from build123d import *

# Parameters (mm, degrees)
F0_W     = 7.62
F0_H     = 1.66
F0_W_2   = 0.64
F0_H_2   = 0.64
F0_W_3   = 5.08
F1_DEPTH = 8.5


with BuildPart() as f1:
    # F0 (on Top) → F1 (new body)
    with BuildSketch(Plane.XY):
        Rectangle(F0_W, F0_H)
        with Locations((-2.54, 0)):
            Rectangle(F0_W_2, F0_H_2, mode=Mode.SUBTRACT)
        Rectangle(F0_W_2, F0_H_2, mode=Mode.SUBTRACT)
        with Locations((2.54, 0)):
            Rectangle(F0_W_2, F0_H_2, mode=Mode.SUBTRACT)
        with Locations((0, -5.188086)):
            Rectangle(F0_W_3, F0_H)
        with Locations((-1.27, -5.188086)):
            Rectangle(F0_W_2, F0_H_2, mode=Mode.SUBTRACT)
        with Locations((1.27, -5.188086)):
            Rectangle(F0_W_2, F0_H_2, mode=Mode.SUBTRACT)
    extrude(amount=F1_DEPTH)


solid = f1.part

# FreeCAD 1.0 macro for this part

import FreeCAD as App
import Part
import Sketcher

V = App.Vector
Q = App.Units.Quantity

doc = App.newDocument("Part")
body = doc.addObject("PartDesign::Body", "Body")
body.AllowCompound = True

# Sketch on XY plane
sketch1 = body.newObject("Sketcher::SketchObject", "Sketch")
sketch1.AttachmentSupport = (doc.getObject("XY_Plane"), [""])
sketch1.MapMode = "FlatFace"
sketch1.addGeometry([
    Part.LineSegment(V(-3.8, 0.8, 0), V(-3.8, -0.8, 0)),  # 0
    Part.LineSegment(V(-3.8, -0.8, 0), V(3.8, -0.8, 0)),  # 1
    Part.LineSegment(V(3.8, -0.8, 0), V(3.8, 0.8, 0)),  # 2
    Part.LineSegment(V(3.8, 0.8, 0), V(-3.8, 0.8, 0)),  # 3
    Part.LineSegment(V(-2.2, -0.3, 0), V(-2.9, -0.3, 0)),  # 4
    Part.LineSegment(V(-2.9, -0.3, 0), V(-2.9, 0.3, 0)),  # 5
    Part.LineSegment(V(-2.9, 0.3, 0), V(-2.2, 0.3, 0)),  # 6
    Part.LineSegment(V(-2.2, 0.3, 0), V(-2.2, -0.3, 0)),  # 7
    Part.LineSegment(V(0.3, -0.3, 0), V(-0.3, -0.3, 0)),  # 8
    Part.LineSegment(V(-0.3, -0.3, 0), V(-0.3, 0.3, 0)),  # 9
    Part.LineSegment(V(-0.3, 0.3, 0), V(0.3, 0.3, 0)),  # 10
    Part.LineSegment(V(0.3, 0.3, 0), V(0.3, -0.3, 0)),  # 11
    Part.LineSegment(V(2.9, -0.3, 0), V(2.2, -0.3, 0)),  # 12
    Part.LineSegment(V(2.2, -0.3, 0), V(2.2, 0.3, 0)),  # 13
    Part.LineSegment(V(2.2, 0.3, 0), V(2.9, 0.3, 0)),  # 14
    Part.LineSegment(V(2.9, 0.3, 0), V(2.9, -0.3, 0)),  # 15
    Part.LineSegment(V(-2.5, -4.4, 0), V(-2.5, -6, 0)),  # 16
    Part.LineSegment(V(-2.5, -6, 0), V(2.5, -6, 0)),  # 17
    Part.LineSegment(V(2.5, -6, 0), V(2.5, -4.4, 0)),  # 18
    Part.LineSegment(V(2.5, -4.4, 0), V(-2.5, -4.4, 0)),  # 19
    Part.LineSegment(V(-0.9, -5.5, 0), V(-1.6, -5.5, 0)),  # 20
    Part.LineSegment(V(-1.6, -5.5, 0), V(-1.6, -4.9, 0)),  # 21
    Part.LineSegment(V(-1.6, -4.9, 0), V(-0.9, -4.9, 0)),  # 22
    Part.LineSegment(V(-0.9, -4.9, 0), V(-0.9, -5.5, 0)),  # 23
    Part.LineSegment(V(1.6, -5.5, 0), V(0.9, -5.5, 0)),  # 24
    Part.LineSegment(V(0.9, -5.5, 0), V(0.9, -4.9, 0)),  # 25
    Part.LineSegment(V(0.9, -4.9, 0), V(1.6, -4.9, 0)),  # 26
    Part.LineSegment(V(1.6, -4.9, 0), V(1.6, -5.5, 0)),  # 27
], False)
sketch1.addConstraint([
    Sketcher.Constraint("Coincident", 0, 2, 1, 1),
    Sketcher.Constraint("Coincident", 1, 2, 2, 1),
    Sketcher.Constraint("Coincident", 2, 2, 3, 1),
    Sketcher.Constraint("Coincident", 3, 2, 0, 1),
    Sketcher.Constraint("Coincident", 4, 2, 5, 1),
    Sketcher.Constraint("Coincident", 5, 2, 6, 1),
    Sketcher.Constraint("Coincident", 6, 2, 7, 1),
    Sketcher.Constraint("Coincident", 7, 2, 4, 1),
    Sketcher.Constraint("Coincident", 8, 2, 9, 1),
    Sketcher.Constraint("Coincident", 9, 2, 10, 1),
    Sketcher.Constraint("Coincident", 10, 2, 11, 1),
    Sketcher.Constraint("Coincident", 11, 2, 8, 1),
    Sketcher.Constraint("Coincident", 12, 2, 13, 1),
    Sketcher.Constraint("Coincident", 13, 2, 14, 1),
    Sketcher.Constraint("Coincident", 14, 2, 15, 1),
    Sketcher.Constraint("Coincident", 15, 2, 12, 1),
    Sketcher.Constraint("Coincident", 16, 2, 17, 1),
    Sketcher.Constraint("Coincident", 17, 2, 18, 1),
    Sketcher.Constraint("Coincident", 18, 2, 19, 1),
    Sketcher.Constraint("Coincident", 19, 2, 16, 1),
    Sketcher.Constraint("Coincident", 20, 2, 21, 1),
    Sketcher.Constraint("Coincident", 21, 2, 22, 1),
    Sketcher.Constraint("Coincident", 22, 2, 23, 1),
    Sketcher.Constraint("Coincident", 23, 2, 20, 1),
    Sketcher.Constraint("Coincident", 24, 2, 25, 1),
    Sketcher.Constraint("Coincident", 25, 2, 26, 1),
    Sketcher.Constraint("Coincident", 26, 2, 27, 1),
    Sketcher.Constraint("Coincident", 27, 2, 24, 1),
    Sketcher.Constraint("Vertical", 0),
    Sketcher.Constraint("Horizontal", 1),
    Sketcher.Constraint("Vertical", 2),
    Sketcher.Constraint("Horizontal", 3),
    Sketcher.Constraint("Horizontal", 4),
    Sketcher.Constraint("Vertical", 5),
    Sketcher.Constraint("Horizontal", 6),
    Sketcher.Constraint("Vertical", 7),
    Sketcher.Constraint("Horizontal", 8),
    Sketcher.Constraint("Vertical", 9),
    Sketcher.Constraint("Horizontal", 10),
    Sketcher.Constraint("Vertical", 11),
    Sketcher.Constraint("Horizontal", 12),
    Sketcher.Constraint("Vertical", 13),
    Sketcher.Constraint("Horizontal", 14),
    Sketcher.Constraint("Vertical", 15),
    Sketcher.Constraint("Vertical", 16),
    Sketcher.Constraint("Horizontal", 17),
    Sketcher.Constraint("Vertical", 18),
    Sketcher.Constraint("Horizontal", 19),
    Sketcher.Constraint("Horizontal", 20),
    Sketcher.Constraint("Vertical", 21),
    Sketcher.Constraint("Horizontal", 22),
    Sketcher.Constraint("Vertical", 23),
    Sketcher.Constraint("Horizontal", 24),
    Sketcher.Constraint("Vertical", 25),
    Sketcher.Constraint("Horizontal", 26),
    Sketcher.Constraint("Vertical", 27),
    Sketcher.Constraint("Symmetric", 0, 2, 2, 2, -1, 1),
    Sketcher.Constraint("Symmetric", 8, 2, 10, 2, -1, 1),
    Sketcher.Constraint("Symmetric", 6, 2, 12, 2, -1, 1),
    Sketcher.Constraint("Symmetric", 4, 2, 14, 2, -1, 1),
    Sketcher.Constraint("Symmetric", 23, 2, 24, 2, -2),
    Sketcher.Constraint("Symmetric", 21, 2, 26, 2, -2),
    Sketcher.Constraint("Horizontal", 7, 2, 8, 2),
    Sketcher.Constraint("Horizontal", 6, 2, 9, 2),
    Sketcher.Constraint("Equal", 6, 8),
    Sketcher.Constraint("Equal", 14, 20),
    Sketcher.Constraint("Equal", 26, 5),
    Sketcher.Constraint("Equal", 2, 16),
    Sketcher.Constraint("Equal", 15, 21),
    Sketcher.Constraint("DistanceX", 1, 1, 1, 2, Q("0.3 in")),
    Sketcher.Constraint("DistanceX", 17, 1, 17, 2, Q("0.2 in")),
    Sketcher.Constraint("DistanceX", 16, 2, -1, 1, Q("0.1 in")),
    Sketcher.Constraint("DistanceX", 4, 2, 8, 2, Q("0.1 in")),
    Sketcher.Constraint("DistanceX", 20, 2, 24, 2, Q("0.1 in")),
    Sketcher.Constraint("DistanceX", 4, 2, 4, 1, Q("0.64 mm")),
    Sketcher.Constraint("DistanceY", 0, 2, 0, 1, Q("1.66 mm")),
    Sketcher.Constraint("DistanceY", 16, 2, 20, 2, Q("0.51 mm")),
    Sketcher.Constraint("DistanceY", 16, 2, -1, 1, Q("6.018086 mm")),
])
pad1 = body.newObject("PartDesign::Pad", "Pad")
pad1.Profile = sketch1
pad1.Length = 8.5

doc.recompute()
